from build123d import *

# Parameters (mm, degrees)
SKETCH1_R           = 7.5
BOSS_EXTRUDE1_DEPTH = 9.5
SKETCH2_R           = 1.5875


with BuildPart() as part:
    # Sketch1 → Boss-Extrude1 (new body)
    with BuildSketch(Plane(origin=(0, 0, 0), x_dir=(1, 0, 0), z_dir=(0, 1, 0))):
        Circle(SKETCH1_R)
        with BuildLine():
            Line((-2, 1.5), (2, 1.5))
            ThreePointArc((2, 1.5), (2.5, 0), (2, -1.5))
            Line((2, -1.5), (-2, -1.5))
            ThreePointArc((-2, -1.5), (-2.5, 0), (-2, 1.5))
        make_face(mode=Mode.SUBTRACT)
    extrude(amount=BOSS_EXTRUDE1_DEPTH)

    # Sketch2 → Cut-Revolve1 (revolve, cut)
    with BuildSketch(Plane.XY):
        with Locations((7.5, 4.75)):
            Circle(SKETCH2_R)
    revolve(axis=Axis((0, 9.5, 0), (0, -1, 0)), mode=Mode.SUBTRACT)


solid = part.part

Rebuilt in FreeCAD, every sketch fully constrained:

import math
import FreeCAD as App
import Part
import Sketcher
from FreeCAD import Vector

doc = App.newDocument("Part")
params = doc.addObject("Spreadsheet::Sheet", "Params")
for row, (alias, value) in enumerate([
    ("sketch1_diameter", "15 mm"),
    ("sketch1_radius", "2.5 mm"),
    ("sketch1_width", "4 mm"),
    ("pad1_length", "9.5 mm"),
    ("groove_angle", "360 deg"),
], start=1):
    params.set(f"A{row}", alias)
    params.set(f"B{row}", "=" + value)
    params.setAlias(f"B{row}", alias)

body = doc.addObject("PartDesign::Body", "Body")

# Sketch on XZ plane
sketch1 = body.newObject("Sketcher::SketchObject", "Sketch")
sketch1.AttachmentSupport = (doc.getObject("XZ_Plane"), [""])
sketch1.MapMode = "FlatFace"
sketch1.addGeometry(Part.Circle(Vector(0, 0, 0), Vector(0, 0, 1), 7.5), False)
sketch1.addGeometry(Part.ArcOfCircle(Part.Circle(Vector(0, 0, 0), Vector(0, 0, 1), 2.5), math.radians(143), math.radians(217)), False)
sketch1.addGeometry(Part.LineSegment(Vector(-2, -1.5, 0), Vector(2, -1.5, 0)), False)
sketch1.addGeometry(Part.ArcOfCircle(Part.Circle(Vector(0, 0, 0), Vector(0, 0, 1), 2.5), math.radians(-37), math.radians(37)), False)
sketch1.addGeometry(Part.LineSegment(Vector(2, 1.5, 0), Vector(-2, 1.5, 0)), False)
sketch1.addConstraint(Sketcher.Constraint("Coincident", 1, 2, 2, 1))
sketch1.addConstraint(Sketcher.Constraint("Coincident", 2, 2, 3, 1))
sketch1.addConstraint(Sketcher.Constraint("Coincident", 3, 2, 4, 1))
sketch1.addConstraint(Sketcher.Constraint("Coincident", 4, 2, 1, 1))
sketch1.addConstraint(Sketcher.Constraint("Horizontal", 2))
sketch1.addConstraint(Sketcher.Constraint("Horizontal", 4))
sketch1.addConstraint(Sketcher.Constraint("Coincident", 0, 3, -1, 1))
sketch1.addConstraint(Sketcher.Constraint("Coincident", 1, 3, -1, 1))
sketch1.addConstraint(Sketcher.Constraint("Coincident", 3, 3, -1, 1))
sketch1.addConstraint(Sketcher.Constraint("Equal", 1, 3))
sketch1.addConstraint(Sketcher.Constraint("Vertical", 2, 2, 3, 2))
sketch1.addConstraint(Sketcher.Constraint("Diameter", 0, 15.0))
sketch1.addConstraint(Sketcher.Constraint("Radius", 1, 2.5))
sketch1.addConstraint(Sketcher.Constraint("DistanceX", 2, 1, 2, 2, 4.0))
sketch1.setExpression("Constraints[11]", "Params.sketch1_diameter")
sketch1.setExpression("Constraints[12]", "Params.sketch1_radius")
sketch1.setExpression("Constraints[13]", "Params.sketch1_width")
pad1 = body.newObject("PartDesign::Pad", "Pad")
pad1.Profile = sketch1
pad1.setExpression("Length", "Params.pad1_length")
pad1.Reversed = True

# Sketch on XY plane
sketch2 = body.newObject("Sketcher::SketchObject", "Sketch001")
sketch2.AttachmentSupport = (doc.getObject("XY_Plane"), [""])
sketch2.MapMode = "FlatFace"
sketch2.addGeometry(Part.Circle(Vector(7.5, 4.8, 0), Vector(0, 0, 1), 1.6), False)
sketch2.addConstraint(Sketcher.Constraint("Diameter", 0, 3.175))
sketch2.addConstraint(Sketcher.Constraint("DistanceX", -1, 1, 0, 3, 7.5))
sketch2.addConstraint(Sketcher.Constraint("DistanceY", -1, 1, 0, 3, 4.75))
groove = body.newObject("PartDesign::Groove", "Groove")
groove.Profile = sketch2
groove.ReferenceAxis = (sketch2, ["V_Axis"])
groove.setExpression("Angle", "Params.groove_angle")

doc.recompute()
